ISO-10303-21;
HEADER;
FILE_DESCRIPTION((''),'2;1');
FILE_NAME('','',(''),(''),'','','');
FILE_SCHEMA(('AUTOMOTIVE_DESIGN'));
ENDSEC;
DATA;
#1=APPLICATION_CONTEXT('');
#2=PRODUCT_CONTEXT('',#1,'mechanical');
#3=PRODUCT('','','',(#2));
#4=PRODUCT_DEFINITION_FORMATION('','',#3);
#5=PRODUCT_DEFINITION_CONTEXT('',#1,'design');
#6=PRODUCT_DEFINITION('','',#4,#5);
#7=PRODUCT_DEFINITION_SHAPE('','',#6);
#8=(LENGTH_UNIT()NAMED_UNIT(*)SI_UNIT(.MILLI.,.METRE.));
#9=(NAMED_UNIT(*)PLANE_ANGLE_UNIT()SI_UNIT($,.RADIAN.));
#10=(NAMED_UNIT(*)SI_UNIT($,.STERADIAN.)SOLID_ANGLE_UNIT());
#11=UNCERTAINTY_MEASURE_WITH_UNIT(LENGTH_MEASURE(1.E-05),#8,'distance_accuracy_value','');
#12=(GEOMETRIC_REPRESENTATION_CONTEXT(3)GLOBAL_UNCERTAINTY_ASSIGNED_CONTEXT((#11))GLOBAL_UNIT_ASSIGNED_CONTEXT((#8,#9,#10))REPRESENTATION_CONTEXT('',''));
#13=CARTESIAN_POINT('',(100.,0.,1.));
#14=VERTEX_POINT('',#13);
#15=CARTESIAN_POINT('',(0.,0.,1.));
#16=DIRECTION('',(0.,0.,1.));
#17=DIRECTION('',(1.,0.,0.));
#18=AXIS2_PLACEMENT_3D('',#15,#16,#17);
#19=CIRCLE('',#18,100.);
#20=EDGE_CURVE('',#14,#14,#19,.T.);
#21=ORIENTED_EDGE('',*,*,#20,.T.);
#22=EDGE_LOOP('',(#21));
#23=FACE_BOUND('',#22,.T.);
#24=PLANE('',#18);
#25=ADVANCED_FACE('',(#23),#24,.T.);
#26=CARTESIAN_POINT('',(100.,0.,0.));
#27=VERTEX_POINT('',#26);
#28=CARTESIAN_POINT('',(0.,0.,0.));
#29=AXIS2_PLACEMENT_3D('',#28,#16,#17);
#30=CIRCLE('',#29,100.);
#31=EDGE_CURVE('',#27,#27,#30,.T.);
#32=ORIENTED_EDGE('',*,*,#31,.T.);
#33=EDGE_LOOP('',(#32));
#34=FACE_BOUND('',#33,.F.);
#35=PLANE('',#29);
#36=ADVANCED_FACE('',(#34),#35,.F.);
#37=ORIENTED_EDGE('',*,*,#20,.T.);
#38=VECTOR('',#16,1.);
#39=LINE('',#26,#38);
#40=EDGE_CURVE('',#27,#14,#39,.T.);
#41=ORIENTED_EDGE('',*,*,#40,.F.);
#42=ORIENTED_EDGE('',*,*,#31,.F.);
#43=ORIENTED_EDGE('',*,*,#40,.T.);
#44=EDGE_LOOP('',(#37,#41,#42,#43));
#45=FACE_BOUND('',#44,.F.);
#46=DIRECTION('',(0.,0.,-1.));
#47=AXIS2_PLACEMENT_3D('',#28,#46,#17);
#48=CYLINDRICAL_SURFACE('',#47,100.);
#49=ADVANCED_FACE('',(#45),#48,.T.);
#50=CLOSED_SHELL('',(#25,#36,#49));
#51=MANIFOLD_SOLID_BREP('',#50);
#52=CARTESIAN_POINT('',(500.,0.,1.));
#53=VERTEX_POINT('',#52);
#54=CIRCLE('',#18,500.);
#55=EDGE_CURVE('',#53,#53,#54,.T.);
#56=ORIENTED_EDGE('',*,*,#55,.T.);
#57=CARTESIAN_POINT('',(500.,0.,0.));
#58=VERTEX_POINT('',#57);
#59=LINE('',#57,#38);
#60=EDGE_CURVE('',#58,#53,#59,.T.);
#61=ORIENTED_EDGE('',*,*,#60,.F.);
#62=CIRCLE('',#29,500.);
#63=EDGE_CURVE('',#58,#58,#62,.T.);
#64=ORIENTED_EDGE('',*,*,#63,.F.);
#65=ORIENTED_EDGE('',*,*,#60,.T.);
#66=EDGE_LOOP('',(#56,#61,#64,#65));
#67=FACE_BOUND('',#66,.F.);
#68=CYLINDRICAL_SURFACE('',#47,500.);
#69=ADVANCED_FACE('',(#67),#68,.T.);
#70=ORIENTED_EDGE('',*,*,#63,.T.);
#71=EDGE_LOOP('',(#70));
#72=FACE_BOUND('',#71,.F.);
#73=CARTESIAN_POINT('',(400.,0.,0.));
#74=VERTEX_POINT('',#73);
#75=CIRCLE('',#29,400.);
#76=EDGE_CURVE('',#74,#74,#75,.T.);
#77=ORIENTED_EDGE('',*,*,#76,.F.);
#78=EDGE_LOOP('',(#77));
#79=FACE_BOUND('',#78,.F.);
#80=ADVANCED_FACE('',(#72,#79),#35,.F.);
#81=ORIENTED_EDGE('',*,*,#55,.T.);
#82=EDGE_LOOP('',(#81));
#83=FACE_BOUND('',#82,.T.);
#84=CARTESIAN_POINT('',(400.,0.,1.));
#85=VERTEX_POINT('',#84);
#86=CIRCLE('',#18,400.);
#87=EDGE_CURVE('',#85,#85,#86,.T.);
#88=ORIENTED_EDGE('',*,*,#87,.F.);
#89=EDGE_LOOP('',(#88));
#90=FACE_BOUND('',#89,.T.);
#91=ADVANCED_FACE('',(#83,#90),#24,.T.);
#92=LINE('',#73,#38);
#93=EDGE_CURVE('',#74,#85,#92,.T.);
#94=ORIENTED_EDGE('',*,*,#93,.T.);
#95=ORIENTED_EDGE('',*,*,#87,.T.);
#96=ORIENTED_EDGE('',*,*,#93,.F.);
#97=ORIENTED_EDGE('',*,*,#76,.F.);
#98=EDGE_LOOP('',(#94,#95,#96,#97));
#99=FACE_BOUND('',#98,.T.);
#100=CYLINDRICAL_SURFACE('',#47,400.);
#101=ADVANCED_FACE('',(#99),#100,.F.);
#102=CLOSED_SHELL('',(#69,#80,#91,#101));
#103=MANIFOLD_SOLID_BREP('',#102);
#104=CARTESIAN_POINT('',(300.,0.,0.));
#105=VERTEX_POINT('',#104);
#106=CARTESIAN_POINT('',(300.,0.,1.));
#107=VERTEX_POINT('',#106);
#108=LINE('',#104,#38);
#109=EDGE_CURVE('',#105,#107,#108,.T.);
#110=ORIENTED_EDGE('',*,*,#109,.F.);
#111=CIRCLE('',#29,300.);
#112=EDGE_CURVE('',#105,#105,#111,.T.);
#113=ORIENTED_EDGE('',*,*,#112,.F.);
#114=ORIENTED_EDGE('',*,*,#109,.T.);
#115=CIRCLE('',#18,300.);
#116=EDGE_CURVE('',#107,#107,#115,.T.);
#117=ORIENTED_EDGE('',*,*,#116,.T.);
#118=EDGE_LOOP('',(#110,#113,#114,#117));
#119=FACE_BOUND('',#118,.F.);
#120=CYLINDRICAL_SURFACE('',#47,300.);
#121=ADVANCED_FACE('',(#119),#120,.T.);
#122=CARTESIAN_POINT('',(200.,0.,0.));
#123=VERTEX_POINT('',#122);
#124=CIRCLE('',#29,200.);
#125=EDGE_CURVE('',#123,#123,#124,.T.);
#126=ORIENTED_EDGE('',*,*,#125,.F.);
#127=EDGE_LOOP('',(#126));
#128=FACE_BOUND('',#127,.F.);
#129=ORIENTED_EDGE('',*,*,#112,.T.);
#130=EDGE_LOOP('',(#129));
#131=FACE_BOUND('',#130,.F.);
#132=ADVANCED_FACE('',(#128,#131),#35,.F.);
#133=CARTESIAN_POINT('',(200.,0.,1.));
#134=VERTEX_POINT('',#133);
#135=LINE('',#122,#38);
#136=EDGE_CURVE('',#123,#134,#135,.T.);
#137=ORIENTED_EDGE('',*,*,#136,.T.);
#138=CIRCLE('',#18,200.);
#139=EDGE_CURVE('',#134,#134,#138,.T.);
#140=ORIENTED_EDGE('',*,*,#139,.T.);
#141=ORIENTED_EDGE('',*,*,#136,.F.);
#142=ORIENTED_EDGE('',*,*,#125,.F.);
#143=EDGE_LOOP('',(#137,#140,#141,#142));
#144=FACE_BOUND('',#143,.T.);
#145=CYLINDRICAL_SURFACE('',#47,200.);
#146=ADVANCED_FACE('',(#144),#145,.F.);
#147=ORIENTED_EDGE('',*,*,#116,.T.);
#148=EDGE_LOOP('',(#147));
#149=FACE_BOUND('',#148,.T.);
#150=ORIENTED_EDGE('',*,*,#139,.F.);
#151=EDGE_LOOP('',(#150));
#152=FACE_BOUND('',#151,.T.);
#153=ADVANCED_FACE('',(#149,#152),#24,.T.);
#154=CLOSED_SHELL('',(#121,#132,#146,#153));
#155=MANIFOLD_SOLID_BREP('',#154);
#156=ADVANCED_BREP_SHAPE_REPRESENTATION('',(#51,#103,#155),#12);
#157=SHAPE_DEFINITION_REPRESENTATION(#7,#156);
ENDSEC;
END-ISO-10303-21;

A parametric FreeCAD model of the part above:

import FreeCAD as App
import Part
import Sketcher
from FreeCAD import Vector
Q = App.Units.Quantity

doc = App.newDocument("Part")
params = doc.addObject("Spreadsheet::Sheet", "Params")
for row, (alias, value) in enumerate([
    ("sketch1_diameter", "1000 mm"),
    ("sketch1_diameter2", "800 mm"),
    ("pad1_length", "1 mm"),
    ("sketch2_diameter", "600 mm"),
    ("sketch2_diameter2", "400 mm"),
    ("pad2_length", "1 mm"),
    ("sketch3_diameter", "200 mm"),
    ("pad3_length", "1 mm"),
], start=1):
    params.set(f"A{row}", alias)
    params.set(f"B{row}", "=" + value)
    params.setAlias(f"B{row}", alias)

body = doc.addObject("PartDesign::Body", "Body")

sketch1 = body.newObject("Sketcher::SketchObject", "Sketch")
sketch1.AttachmentSupport = (doc.getObject("XY_Plane"), [""])
sketch1.MapMode = "FlatFace"
sketch1.addGeometry([
    Part.Circle(Vector(0, 0, 0), Vector(0, 0, 1), 500),
    Part.Circle(Vector(0, 0, 0), Vector(0, 0, 1), 400),
], False)
sketch1.addConstraint([
    Sketcher.Constraint("Coincident", 0, 3, -1, 1),
    Sketcher.Constraint("Coincident", 1, 3, -1, 1),
    Sketcher.Constraint("Diameter", 0, Q("1000 mm")),
    Sketcher.Constraint("Diameter", 1, Q("800 mm")),
])
sketch1.setExpression("Constraints[2]", "Params.sketch1_diameter")
sketch1.setExpression("Constraints[3]", "Params.sketch1_diameter2")
pad1 = body.newObject("PartDesign::Pad", "Pad")
pad1.Profile = sketch1
pad1.setExpression("Length", "Params.pad1_length")
body2 = doc.addObject("PartDesign::Body", "Body001")

sketch2 = body2.newObject("Sketcher::SketchObject", "Sketch001")
sketch2.AttachmentSupport = (doc.getObject("XY_Plane001"), [""])
sketch2.MapMode = "FlatFace"
sketch2.addGeometry([
    Part.Circle(Vector(0, 0, 0), Vector(0, 0, 1), 300),
    Part.Circle(Vector(0, 0, 0), Vector(0, 0, 1), 200),
], False)
sketch2.addConstraint([
    Sketcher.Constraint("Coincident", 0, 3, -1, 1),
    Sketcher.Constraint("Coincident", 1, 3, -1, 1),
    Sketcher.Constraint("Diameter", 0, Q("600 mm")),
    Sketcher.Constraint("Diameter", 1, Q("400 mm")),
])
sketch2.setExpression("Constraints[2]", "Params.sketch2_diameter")
sketch2.setExpression("Constraints[3]", "Params.sketch2_diameter2")
pad2 = body2.newObject("PartDesign::Pad", "Pad001")
pad2.Profile = sketch2
pad2.setExpression("Length", "Params.pad2_length")
body3 = doc.addObject("PartDesign::Body", "Body002")

sketch3 = body3.newObject("Sketcher::SketchObject", "Sketch002")
sketch3.AttachmentSupport = (doc.getObject("XY_Plane002"), [""])
sketch3.MapMode = "FlatFace"
sketch3.addGeometry(Part.Circle(Vector(0, 0, 0), Vector(0, 0, 1), 100), False)
sketch3.addConstraint([
    Sketcher.Constraint("Coincident", 0, 3, -1, 1),
    Sketcher.Constraint("Diameter", 0, Q("200 mm")),
])
sketch3.setExpression("Constraints[1]", "Params.sketch3_diameter")
pad3 = body3.newObject("PartDesign::Pad", "Pad002")
pad3.Profile = sketch3
pad3.setExpression("Length", "Params.pad3_length")

doc.recompute()
